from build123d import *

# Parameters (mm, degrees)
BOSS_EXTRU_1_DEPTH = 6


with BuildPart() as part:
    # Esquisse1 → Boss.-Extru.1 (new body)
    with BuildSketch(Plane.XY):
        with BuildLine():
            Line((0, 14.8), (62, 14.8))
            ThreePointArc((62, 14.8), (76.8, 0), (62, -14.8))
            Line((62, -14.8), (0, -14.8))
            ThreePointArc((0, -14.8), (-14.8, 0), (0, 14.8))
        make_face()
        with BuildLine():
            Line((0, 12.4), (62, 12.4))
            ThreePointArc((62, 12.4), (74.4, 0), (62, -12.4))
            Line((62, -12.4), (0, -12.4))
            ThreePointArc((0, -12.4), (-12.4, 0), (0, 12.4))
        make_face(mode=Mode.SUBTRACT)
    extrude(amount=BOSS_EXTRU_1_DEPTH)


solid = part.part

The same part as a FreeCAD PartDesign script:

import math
import FreeCAD as App
import Part
import Sketcher

doc = App.newDocument("Part")
body = doc.addObject("PartDesign::Body", "Body")

# Sketch on XY plane
sketch1 = body.newObject("Sketcher::SketchObject", "Sketch")
sketch1.AttachmentSupport = (doc.getObject("XY_Plane"), [""])
sketch1.MapMode = "FlatFace"
sketch1.addGeometry(Part.LineSegment(App.Vector(62, 15, 0), App.Vector(0, 15, 0)), False)
sketch1.addGeometry(Part.ArcOfCircle(Part.Circle(App.Vector(0, 0, 0), App.Vector(0, 0, 1), 15), math.radians(90), math.radians(270)), False)
sketch1.addGeometry(Part.LineSegment(App.Vector(0, -15, 0), App.Vector(62, -15, 0)), False)
sketch1.addGeometry(Part.ArcOfCircle(Part.Circle(App.Vector(62, 0, 0), App.Vector(0, 0, 1), 15), math.radians(-90), math.radians(90)), False)
sketch1.addGeometry(Part.LineSegment(App.Vector(0, 12, 0), App.Vector(62, 12, 0)), False)
sketch1.addGeometry(Part.ArcOfCircle(Part.Circle(App.Vector(62, 0, 0), App.Vector(0, 0, 1), 12), math.radians(-90), math.radians(90)), False)
sketch1.addGeometry(Part.LineSegment(App.Vector(62, -12, 0), App.Vector(0, -12, 0)), False)
sketch1.addGeometry(Part.ArcOfCircle(Part.Circle(App.Vector(0, 0, 0), App.Vector(0, 0, 1), 12), math.radians(90), math.radians(270)), False)
sketch1.addConstraint(Sketcher.Constraint("Tangent", 0, 2, 1, 1))
sketch1.addConstraint(Sketcher.Constraint("Tangent", 1, 2, 2, 1))
sketch1.addConstraint(Sketcher.Constraint("Tangent", 2, 2, 3, 1))
sketch1.addConstraint(Sketcher.Constraint("Tangent", 3, 2, 0, 1))
sketch1.addConstraint(Sketcher.Constraint("Tangent", 4, 2, 5, 2))
sketch1.addConstraint(Sketcher.Constraint("Tangent", 5, 1, 6, 1))
sketch1.addConstraint(Sketcher.Constraint("Tangent", 6, 2, 7, 2))
sketch1.addConstraint(Sketcher.Constraint("Tangent", 7, 1, 4, 1))
sketch1.addConstraint(Sketcher.Constraint("Horizontal", 0))
sketch1.addConstraint(Sketcher.Constraint("Horizontal", 2))
sketch1.addConstraint(Sketcher.Constraint("Horizontal", 4))
sketch1.addConstraint(Sketcher.Constraint("Horizontal", 6))
sketch1.addConstraint(Sketcher.Constraint("Coincident", 1, 3, -1, 1))
sketch1.addConstraint(Sketcher.Constraint("Coincident", 7, 3, -1, 1))
sketch1.addConstraint(Sketcher.Constraint("Vertical", 5, 3, 2, 2))
sketch1.addConstraint(Sketcher.Constraint("Radius", 1, 14.8))
sketch1.addConstraint(Sketcher.Constraint("Radius", 5, 12.4))
sketch1.addConstraint(Sketcher.Constraint("DistanceX", 0, 2, 0, 1, 62.0))
pad1 = body.newObject("PartDesign::Pad", "Pad")
pad1.Profile = sketch1
pad1.Length = 6

doc.recompute()
